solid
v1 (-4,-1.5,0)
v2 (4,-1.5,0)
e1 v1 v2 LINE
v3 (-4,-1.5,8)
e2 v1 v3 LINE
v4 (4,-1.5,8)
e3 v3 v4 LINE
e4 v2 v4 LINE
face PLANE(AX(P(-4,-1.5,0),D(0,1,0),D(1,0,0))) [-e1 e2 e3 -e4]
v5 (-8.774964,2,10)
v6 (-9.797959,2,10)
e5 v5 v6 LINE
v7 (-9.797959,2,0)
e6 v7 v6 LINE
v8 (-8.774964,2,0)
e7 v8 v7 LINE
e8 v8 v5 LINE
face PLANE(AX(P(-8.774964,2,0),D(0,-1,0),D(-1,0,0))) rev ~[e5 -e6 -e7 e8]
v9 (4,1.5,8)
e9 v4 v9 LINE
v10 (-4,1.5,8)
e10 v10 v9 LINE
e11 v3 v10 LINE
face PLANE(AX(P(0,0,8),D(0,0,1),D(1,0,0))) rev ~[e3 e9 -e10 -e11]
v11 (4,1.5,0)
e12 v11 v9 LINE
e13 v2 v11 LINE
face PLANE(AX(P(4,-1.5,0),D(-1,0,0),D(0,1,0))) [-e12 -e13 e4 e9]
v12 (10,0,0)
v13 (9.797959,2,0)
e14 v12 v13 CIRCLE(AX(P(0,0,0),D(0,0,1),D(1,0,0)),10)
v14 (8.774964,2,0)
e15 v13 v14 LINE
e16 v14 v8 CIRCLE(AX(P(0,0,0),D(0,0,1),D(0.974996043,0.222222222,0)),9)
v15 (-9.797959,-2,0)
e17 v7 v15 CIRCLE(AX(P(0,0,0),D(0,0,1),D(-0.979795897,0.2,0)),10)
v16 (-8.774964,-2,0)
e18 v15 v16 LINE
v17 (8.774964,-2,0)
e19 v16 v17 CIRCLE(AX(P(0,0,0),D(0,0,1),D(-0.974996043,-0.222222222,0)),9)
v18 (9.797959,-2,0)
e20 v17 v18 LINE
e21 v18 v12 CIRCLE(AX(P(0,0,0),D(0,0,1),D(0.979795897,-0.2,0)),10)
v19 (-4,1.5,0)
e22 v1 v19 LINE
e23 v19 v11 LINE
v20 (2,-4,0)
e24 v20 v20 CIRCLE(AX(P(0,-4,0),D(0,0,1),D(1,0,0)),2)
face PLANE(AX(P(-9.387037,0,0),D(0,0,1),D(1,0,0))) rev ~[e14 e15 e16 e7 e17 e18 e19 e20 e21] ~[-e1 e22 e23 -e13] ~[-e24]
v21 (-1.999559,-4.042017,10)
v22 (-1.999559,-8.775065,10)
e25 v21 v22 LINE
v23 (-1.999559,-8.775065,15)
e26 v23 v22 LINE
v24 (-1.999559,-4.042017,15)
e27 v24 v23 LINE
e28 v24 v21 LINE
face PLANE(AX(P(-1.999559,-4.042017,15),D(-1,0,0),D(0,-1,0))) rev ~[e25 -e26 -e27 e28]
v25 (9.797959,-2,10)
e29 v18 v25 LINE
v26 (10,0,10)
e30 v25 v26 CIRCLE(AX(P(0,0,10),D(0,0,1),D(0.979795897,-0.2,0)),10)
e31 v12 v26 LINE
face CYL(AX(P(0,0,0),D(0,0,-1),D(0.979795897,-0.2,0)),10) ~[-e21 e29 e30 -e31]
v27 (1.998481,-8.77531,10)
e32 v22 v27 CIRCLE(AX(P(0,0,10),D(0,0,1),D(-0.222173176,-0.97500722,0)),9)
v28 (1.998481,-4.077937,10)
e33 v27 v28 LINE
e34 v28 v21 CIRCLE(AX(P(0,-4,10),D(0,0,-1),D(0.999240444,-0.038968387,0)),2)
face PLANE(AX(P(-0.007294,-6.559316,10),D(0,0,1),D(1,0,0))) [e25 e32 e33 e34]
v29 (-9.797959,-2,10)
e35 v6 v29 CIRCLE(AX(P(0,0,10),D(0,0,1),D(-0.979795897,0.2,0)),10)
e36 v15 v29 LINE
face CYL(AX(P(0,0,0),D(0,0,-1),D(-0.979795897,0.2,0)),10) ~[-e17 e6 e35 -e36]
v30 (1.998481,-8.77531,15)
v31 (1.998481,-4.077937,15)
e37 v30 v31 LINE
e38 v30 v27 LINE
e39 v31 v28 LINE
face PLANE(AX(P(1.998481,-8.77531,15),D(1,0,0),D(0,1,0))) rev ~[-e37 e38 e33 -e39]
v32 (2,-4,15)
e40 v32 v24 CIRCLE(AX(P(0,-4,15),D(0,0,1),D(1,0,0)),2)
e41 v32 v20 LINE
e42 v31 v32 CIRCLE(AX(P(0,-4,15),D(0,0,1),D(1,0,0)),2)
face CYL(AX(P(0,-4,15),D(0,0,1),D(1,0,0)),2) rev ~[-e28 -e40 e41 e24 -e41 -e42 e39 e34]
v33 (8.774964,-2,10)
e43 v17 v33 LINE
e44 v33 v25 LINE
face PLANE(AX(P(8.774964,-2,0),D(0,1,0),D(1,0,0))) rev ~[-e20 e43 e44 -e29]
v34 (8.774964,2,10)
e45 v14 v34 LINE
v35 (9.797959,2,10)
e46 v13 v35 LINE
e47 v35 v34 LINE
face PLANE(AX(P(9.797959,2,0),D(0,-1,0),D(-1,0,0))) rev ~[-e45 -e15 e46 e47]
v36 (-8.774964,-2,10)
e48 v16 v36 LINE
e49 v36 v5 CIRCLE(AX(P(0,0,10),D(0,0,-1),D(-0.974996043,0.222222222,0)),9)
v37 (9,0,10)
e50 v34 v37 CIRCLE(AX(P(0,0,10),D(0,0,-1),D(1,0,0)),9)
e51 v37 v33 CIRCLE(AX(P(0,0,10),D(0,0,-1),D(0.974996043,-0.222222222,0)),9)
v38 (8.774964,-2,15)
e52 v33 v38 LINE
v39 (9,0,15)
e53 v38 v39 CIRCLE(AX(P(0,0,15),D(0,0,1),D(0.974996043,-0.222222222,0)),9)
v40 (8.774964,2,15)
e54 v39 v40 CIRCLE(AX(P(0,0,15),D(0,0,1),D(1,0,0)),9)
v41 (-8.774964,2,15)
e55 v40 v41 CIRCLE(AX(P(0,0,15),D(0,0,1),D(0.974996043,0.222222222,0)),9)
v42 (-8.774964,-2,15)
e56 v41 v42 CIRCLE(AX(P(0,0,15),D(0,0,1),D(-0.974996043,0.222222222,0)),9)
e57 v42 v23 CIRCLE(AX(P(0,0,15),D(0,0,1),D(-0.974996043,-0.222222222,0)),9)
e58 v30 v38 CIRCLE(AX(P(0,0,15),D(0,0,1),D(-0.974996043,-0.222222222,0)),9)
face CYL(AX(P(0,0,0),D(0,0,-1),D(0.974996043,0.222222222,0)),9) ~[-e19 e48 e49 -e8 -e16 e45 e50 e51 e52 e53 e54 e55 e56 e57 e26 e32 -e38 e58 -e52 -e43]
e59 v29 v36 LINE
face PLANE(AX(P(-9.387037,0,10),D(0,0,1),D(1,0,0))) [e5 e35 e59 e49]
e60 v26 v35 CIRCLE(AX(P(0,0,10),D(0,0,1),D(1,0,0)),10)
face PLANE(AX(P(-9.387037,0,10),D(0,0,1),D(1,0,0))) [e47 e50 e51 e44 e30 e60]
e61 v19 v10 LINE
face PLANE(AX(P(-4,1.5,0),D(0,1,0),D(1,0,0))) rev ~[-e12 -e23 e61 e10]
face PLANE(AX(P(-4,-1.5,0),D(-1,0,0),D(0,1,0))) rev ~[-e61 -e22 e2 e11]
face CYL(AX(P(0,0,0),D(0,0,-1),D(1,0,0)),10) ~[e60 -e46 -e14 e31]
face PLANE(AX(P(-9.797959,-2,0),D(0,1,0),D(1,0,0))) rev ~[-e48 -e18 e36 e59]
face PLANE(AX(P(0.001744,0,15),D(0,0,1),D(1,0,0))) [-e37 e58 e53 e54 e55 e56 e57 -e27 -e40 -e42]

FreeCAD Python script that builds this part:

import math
import FreeCAD as App
import Part
import Sketcher


def add_polygon(sketch, points):
    """Adds a closed chain of lines whose ends are joined by coincident constraints."""
    first, n = sketch.GeometryCount, len(points)
    for a, b in zip(points, points[1:] + points[:1]):
        sketch.addGeometry(Part.LineSegment(App.Vector(*a, 0), App.Vector(*b, 0)), False)
    for i in range(n):
        sketch.addConstraint(Sketcher.Constraint("Coincident", first + i, 2, first + (i + 1) % n, 1))

doc = App.newDocument("Part")
body = doc.addObject("PartDesign::Body", "Body")

# Sketch on XY plane
sketch1 = body.newObject("Sketcher::SketchObject", "Sketch")
sketch1.AttachmentSupport = (doc.getObject("XY_Plane"), [""])
sketch1.MapMode = "FlatFace"
sketch1.addGeometry(Part.ArcOfCircle(Part.Circle(App.Vector(0, 0, 0), App.Vector(0, 0, 1), 10), math.radians(168), math.radians(192)), False)
sketch1.addGeometry(Part.LineSegment(App.Vector(-9.8, -2, 0), App.Vector(-8.8, -2, 0)), False)
sketch1.addGeometry(Part.ArcOfCircle(Part.Circle(App.Vector(0, 0, 0), App.Vector(0, 0, 1), 9), math.radians(-167), math.radians(-13)), False)
sketch1.addGeometry(Part.LineSegment(App.Vector(8.8, -2, 0), App.Vector(9.8, -2, 0)), False)
sketch1.addGeometry(Part.ArcOfCircle(Part.Circle(App.Vector(0, 0, 0), App.Vector(0, 0, 1), 10), math.radians(-11.54), math.radians(0)), False)
sketch1.addGeometry(Part.ArcOfCircle(Part.Circle(App.Vector(0, 0, 0), App.Vector(0, 0, 1), 10), math.radians(0), math.radians(11.54)), False)
sketch1.addGeometry(Part.LineSegment(App.Vector(9.8, 2, 0), App.Vector(8.8, 2, 0)), False)
sketch1.addGeometry(Part.ArcOfCircle(Part.Circle(App.Vector(0, 0, 0), App.Vector(0, 0, 1), 9), math.radians(13), math.radians(167)), False)
sketch1.addGeometry(Part.LineSegment(App.Vector(-8.8, 2, 0), App.Vector(-9.8, 2, 0)), False)
sketch1.addConstraint(Sketcher.Constraint("Coincident", 0, 2, 1, 1))
sketch1.addConstraint(Sketcher.Constraint("Coincident", 1, 2, 2, 1))
sketch1.addConstraint(Sketcher.Constraint("Coincident", 2, 2, 3, 1))
sketch1.addConstraint(Sketcher.Constraint("Coincident", 3, 2, 4, 1))
sketch1.addConstraint(Sketcher.Constraint("Tangent", 4, 2, 5, 1))
sketch1.addConstraint(Sketcher.Constraint("Coincident", 5, 2, 6, 1))
sketch1.addConstraint(Sketcher.Constraint("Coincident", 6, 2, 7, 1))
sketch1.addConstraint(Sketcher.Constraint("Coincident", 7, 2, 8, 1))
sketch1.addConstraint(Sketcher.Constraint("Coincident", 8, 2, 0, 1))
sketch1.addConstraint(Sketcher.Constraint("Horizontal", 1))
sketch1.addConstraint(Sketcher.Constraint("Horizontal", 3))
sketch1.addConstraint(Sketcher.Constraint("Horizontal", 6))
sketch1.addConstraint(Sketcher.Constraint("Horizontal", 8))
sketch1.addConstraint(Sketcher.Constraint("Coincident", 0, 3, -1, 1))
sketch1.addConstraint(Sketcher.Constraint("Coincident", 2, 3, -1, 1))
sketch1.addConstraint(Sketcher.Constraint("Coincident", 4, 3, -1, 1))
sketch1.addConstraint(Sketcher.Constraint("Coincident", 7, 3, -1, 1))
sketch1.addConstraint(Sketcher.Constraint("Equal", 0, 4))
sketch1.addConstraint(Sketcher.Constraint("Equal", 4, 5))
sketch1.addConstraint(Sketcher.Constraint("Equal", 2, 7))
sketch1.addConstraint(Sketcher.Constraint("PointOnObject", 4, 2, -1))
sketch1.addConstraint(Sketcher.Constraint("Horizontal", 1, 2, 2, 2))
sketch1.addConstraint(Sketcher.Constraint("Horizontal", 6, 2, 7, 2))
sketch1.addConstraint(Sketcher.Constraint("Vertical", 3, 2, 5, 2))
sketch1.addConstraint(Sketcher.Constraint("Radius", 0, 10.0))
sketch1.addConstraint(Sketcher.Constraint("Radius", 2, 9.0))
sketch1.addConstraint(Sketcher.Constraint("DistanceY", 0, 2, -1, 1, 2.0))
pad1 = body.newObject("PartDesign::Pad", "Pad")
pad1.Profile = sketch1
pad1.Length = 10

# Sketch on XY plane
sketch2 = body.newObject("Sketcher::SketchObject", "Sketch001")
sketch2.AttachmentSupport = (doc.getObject("XY_Plane"), [""])
sketch2.MapMode = "FlatFace"
sketch2.addGeometry(Part.ArcOfCircle(Part.Circle(App.Vector(0, 0, 0), App.Vector(0, 0, 1), 9), math.radians(0), math.radians(12.84)), False)
sketch2.addGeometry(Part.ArcOfCircle(Part.Circle(App.Vector(0, 0, 0), App.Vector(0, 0, 1), 9), math.radians(13), math.radians(167)), False)
sketch2.addGeometry(Part.ArcOfCircle(Part.Circle(App.Vector(0, 0, 0), App.Vector(0, 0, 1), 9), math.radians(167), math.radians(193)), False)
sketch2.addGeometry(Part.ArcOfCircle(Part.Circle(App.Vector(0, 0, 0), App.Vector(0, 0, 1), 9), math.radians(-167), math.radians(-13)), False)
sketch2.addGeometry(Part.ArcOfCircle(Part.Circle(App.Vector(0, 0, 0), App.Vector(0, 0, 1), 9), math.radians(-12.84), math.radians(0)), False)
sketch2.addConstraint(Sketcher.Constraint("Tangent", 0, 2, 1, 1))
sketch2.addConstraint(Sketcher.Constraint("Tangent", 1, 2, 2, 1))
sketch2.addConstraint(Sketcher.Constraint("Tangent", 2, 2, 3, 1))
sketch2.addConstraint(Sketcher.Constraint("Tangent", 3, 2, 4, 1))
sketch2.addConstraint(Sketcher.Constraint("Tangent", 4, 2, 0, 1))
sketch2.addConstraint(Sketcher.Constraint("Coincident", 0, 3, -1, 1))
sketch2.addConstraint(Sketcher.Constraint("Coincident", 2, 3, -1, 1))
sketch2.addConstraint(Sketcher.Constraint("PointOnObject", 4, 2, -1))
sketch2.addConstraint(Sketcher.Constraint("Horizontal", 0, 2, 1, 2))
sketch2.addConstraint(Sketcher.Constraint("Horizontal", 2, 2, 3, 2))
sketch2.addConstraint(Sketcher.Constraint("Vertical", 1, 2, 2, 2))
sketch2.addConstraint(Sketcher.Constraint("Radius", 0, 9.0))
sketch2.addConstraint(Sketcher.Constraint("DistanceY", -1, 1, 0, 2, 2.0))
pad2 = body.newObject("PartDesign::Pad", "Pad001")
pad2.Profile = sketch2
pad2.Length = 15

# Sketch on XY plane
sketch3 = body.newObject("Sketcher::SketchObject", "Sketch002")
sketch3.AttachmentSupport = (doc.getObject("XY_Plane"), [""])
sketch3.MapMode = "FlatFace"
add_polygon(sketch3, [(-4, 1.5), (-4, -1.5), (4, -1.5), (4, 1.5)])  # lines 0-3
sketch3.addConstraint(Sketcher.Constraint("Vertical", 0))
sketch3.addConstraint(Sketcher.Constraint("Horizontal", 1))
sketch3.addConstraint(Sketcher.Constraint("Vertical", 2))
sketch3.addConstraint(Sketcher.Constraint("Horizontal", 3))
sketch3.addConstraint(Sketcher.Constraint("Symmetric", 0, 2, 2, 2, -1, 1))
sketch3.addConstraint(Sketcher.Constraint("DistanceX", 1, 1, 1, 2, 8.0))
sketch3.addConstraint(Sketcher.Constraint("DistanceY", 0, 2, 0, 1, 3.0))
pocket1 = body.newObject("PartDesign::Pocket", "Pocket")
pocket1.Profile = sketch3
pocket1.Length = 8
pocket1.Reversed = True

# Sketch on XY plane
sketch4 = body.newObject("Sketcher::SketchObject", "Sketch003")
sketch4.AttachmentSupport = (doc.getObject("XY_Plane"), [""])
sketch4.MapMode = "FlatFace"
sketch4.AttachmentOffset = App.Placement(App.Vector(0, 0, 15), App.Rotation())
sketch4.addGeometry(Part.Circle(App.Vector(0, -4, 0), App.Vector(0, 0, 1), 2), False)
sketch4.addConstraint(Sketcher.Constraint("PointOnObject", 0, 3, -2))
sketch4.addConstraint(Sketcher.Constraint("Diameter", 0, 4.0))
sketch4.addConstraint(Sketcher.Constraint("DistanceY", 0, 3, -1, 1, 4.0))
pocket2 = body.newObject("PartDesign::Pocket", "Pocket001")
pocket2.Profile = sketch4
pocket2.Length = 25

# Sketch on XY plane
sketch5 = body.newObject("Sketcher::SketchObject", "Sketch004")
sketch5.AttachmentSupport = (doc.getObject("XY_Plane"), [""])
sketch5.MapMode = "FlatFace"
sketch5.AttachmentOffset = App.Placement(App.Vector(0, 0, 15), App.Rotation())
sketch5.addGeometry(Part.ArcOfCircle(Part.Circle(App.Vector(0, -4, 0), App.Vector(0, 0, 1), 2), math.radians(-179), math.radians(-2)), False)
sketch5.addGeometry(Part.LineSegment(App.Vector(-2, -4, 0), App.Vector(-2, -8.8, 0)), False)
sketch5.addGeometry(Part.ArcOfCircle(Part.Circle(App.Vector(0, 0, 0), App.Vector(0, 0, 1), 9), math.radians(-103), math.radians(-77)), False)
sketch5.addGeometry(Part.LineSegment(App.Vector(2, -8.8, 0), App.Vector(2, -4.1, 0)), False)
sketch5.addConstraint(Sketcher.Constraint("Coincident", 0, 1, 1, 1))
sketch5.addConstraint(Sketcher.Constraint("Coincident", 1, 2, 2, 1))
sketch5.addConstraint(Sketcher.Constraint("Coincident", 2, 2, 3, 1))
sketch5.addConstraint(Sketcher.Constraint("Coincident", 3, 2, 0, 2))
sketch5.addConstraint(Sketcher.Constraint("Vertical", 1))
sketch5.addConstraint(Sketcher.Constraint("Vertical", 3))
sketch5.addConstraint(Sketcher.Constraint("Coincident", 2, 3, -1, 1))
sketch5.addConstraint(Sketcher.Constraint("PointOnObject", 0, 3, -2))
sketch5.addConstraint(Sketcher.Constraint("Radius", 0, 2.0))
sketch5.addConstraint(Sketcher.Constraint("Radius", 2, 9.0))
sketch5.addConstraint(Sketcher.Constraint("DistanceY", 0, 3, -1, 1, 4.0))
sketch5.addConstraint(Sketcher.Constraint("DistanceY", 1, 2, 1, 1, 4.733048))
sketch5.addConstraint(Sketcher.Constraint("DistanceY", 3, 1, 3, 2, 4.697374))
pocket3 = body.newObject("PartDesign::Pocket", "Pocket002")
pocket3.Profile = sketch5
pocket3.Length = 5

doc.recompute()
